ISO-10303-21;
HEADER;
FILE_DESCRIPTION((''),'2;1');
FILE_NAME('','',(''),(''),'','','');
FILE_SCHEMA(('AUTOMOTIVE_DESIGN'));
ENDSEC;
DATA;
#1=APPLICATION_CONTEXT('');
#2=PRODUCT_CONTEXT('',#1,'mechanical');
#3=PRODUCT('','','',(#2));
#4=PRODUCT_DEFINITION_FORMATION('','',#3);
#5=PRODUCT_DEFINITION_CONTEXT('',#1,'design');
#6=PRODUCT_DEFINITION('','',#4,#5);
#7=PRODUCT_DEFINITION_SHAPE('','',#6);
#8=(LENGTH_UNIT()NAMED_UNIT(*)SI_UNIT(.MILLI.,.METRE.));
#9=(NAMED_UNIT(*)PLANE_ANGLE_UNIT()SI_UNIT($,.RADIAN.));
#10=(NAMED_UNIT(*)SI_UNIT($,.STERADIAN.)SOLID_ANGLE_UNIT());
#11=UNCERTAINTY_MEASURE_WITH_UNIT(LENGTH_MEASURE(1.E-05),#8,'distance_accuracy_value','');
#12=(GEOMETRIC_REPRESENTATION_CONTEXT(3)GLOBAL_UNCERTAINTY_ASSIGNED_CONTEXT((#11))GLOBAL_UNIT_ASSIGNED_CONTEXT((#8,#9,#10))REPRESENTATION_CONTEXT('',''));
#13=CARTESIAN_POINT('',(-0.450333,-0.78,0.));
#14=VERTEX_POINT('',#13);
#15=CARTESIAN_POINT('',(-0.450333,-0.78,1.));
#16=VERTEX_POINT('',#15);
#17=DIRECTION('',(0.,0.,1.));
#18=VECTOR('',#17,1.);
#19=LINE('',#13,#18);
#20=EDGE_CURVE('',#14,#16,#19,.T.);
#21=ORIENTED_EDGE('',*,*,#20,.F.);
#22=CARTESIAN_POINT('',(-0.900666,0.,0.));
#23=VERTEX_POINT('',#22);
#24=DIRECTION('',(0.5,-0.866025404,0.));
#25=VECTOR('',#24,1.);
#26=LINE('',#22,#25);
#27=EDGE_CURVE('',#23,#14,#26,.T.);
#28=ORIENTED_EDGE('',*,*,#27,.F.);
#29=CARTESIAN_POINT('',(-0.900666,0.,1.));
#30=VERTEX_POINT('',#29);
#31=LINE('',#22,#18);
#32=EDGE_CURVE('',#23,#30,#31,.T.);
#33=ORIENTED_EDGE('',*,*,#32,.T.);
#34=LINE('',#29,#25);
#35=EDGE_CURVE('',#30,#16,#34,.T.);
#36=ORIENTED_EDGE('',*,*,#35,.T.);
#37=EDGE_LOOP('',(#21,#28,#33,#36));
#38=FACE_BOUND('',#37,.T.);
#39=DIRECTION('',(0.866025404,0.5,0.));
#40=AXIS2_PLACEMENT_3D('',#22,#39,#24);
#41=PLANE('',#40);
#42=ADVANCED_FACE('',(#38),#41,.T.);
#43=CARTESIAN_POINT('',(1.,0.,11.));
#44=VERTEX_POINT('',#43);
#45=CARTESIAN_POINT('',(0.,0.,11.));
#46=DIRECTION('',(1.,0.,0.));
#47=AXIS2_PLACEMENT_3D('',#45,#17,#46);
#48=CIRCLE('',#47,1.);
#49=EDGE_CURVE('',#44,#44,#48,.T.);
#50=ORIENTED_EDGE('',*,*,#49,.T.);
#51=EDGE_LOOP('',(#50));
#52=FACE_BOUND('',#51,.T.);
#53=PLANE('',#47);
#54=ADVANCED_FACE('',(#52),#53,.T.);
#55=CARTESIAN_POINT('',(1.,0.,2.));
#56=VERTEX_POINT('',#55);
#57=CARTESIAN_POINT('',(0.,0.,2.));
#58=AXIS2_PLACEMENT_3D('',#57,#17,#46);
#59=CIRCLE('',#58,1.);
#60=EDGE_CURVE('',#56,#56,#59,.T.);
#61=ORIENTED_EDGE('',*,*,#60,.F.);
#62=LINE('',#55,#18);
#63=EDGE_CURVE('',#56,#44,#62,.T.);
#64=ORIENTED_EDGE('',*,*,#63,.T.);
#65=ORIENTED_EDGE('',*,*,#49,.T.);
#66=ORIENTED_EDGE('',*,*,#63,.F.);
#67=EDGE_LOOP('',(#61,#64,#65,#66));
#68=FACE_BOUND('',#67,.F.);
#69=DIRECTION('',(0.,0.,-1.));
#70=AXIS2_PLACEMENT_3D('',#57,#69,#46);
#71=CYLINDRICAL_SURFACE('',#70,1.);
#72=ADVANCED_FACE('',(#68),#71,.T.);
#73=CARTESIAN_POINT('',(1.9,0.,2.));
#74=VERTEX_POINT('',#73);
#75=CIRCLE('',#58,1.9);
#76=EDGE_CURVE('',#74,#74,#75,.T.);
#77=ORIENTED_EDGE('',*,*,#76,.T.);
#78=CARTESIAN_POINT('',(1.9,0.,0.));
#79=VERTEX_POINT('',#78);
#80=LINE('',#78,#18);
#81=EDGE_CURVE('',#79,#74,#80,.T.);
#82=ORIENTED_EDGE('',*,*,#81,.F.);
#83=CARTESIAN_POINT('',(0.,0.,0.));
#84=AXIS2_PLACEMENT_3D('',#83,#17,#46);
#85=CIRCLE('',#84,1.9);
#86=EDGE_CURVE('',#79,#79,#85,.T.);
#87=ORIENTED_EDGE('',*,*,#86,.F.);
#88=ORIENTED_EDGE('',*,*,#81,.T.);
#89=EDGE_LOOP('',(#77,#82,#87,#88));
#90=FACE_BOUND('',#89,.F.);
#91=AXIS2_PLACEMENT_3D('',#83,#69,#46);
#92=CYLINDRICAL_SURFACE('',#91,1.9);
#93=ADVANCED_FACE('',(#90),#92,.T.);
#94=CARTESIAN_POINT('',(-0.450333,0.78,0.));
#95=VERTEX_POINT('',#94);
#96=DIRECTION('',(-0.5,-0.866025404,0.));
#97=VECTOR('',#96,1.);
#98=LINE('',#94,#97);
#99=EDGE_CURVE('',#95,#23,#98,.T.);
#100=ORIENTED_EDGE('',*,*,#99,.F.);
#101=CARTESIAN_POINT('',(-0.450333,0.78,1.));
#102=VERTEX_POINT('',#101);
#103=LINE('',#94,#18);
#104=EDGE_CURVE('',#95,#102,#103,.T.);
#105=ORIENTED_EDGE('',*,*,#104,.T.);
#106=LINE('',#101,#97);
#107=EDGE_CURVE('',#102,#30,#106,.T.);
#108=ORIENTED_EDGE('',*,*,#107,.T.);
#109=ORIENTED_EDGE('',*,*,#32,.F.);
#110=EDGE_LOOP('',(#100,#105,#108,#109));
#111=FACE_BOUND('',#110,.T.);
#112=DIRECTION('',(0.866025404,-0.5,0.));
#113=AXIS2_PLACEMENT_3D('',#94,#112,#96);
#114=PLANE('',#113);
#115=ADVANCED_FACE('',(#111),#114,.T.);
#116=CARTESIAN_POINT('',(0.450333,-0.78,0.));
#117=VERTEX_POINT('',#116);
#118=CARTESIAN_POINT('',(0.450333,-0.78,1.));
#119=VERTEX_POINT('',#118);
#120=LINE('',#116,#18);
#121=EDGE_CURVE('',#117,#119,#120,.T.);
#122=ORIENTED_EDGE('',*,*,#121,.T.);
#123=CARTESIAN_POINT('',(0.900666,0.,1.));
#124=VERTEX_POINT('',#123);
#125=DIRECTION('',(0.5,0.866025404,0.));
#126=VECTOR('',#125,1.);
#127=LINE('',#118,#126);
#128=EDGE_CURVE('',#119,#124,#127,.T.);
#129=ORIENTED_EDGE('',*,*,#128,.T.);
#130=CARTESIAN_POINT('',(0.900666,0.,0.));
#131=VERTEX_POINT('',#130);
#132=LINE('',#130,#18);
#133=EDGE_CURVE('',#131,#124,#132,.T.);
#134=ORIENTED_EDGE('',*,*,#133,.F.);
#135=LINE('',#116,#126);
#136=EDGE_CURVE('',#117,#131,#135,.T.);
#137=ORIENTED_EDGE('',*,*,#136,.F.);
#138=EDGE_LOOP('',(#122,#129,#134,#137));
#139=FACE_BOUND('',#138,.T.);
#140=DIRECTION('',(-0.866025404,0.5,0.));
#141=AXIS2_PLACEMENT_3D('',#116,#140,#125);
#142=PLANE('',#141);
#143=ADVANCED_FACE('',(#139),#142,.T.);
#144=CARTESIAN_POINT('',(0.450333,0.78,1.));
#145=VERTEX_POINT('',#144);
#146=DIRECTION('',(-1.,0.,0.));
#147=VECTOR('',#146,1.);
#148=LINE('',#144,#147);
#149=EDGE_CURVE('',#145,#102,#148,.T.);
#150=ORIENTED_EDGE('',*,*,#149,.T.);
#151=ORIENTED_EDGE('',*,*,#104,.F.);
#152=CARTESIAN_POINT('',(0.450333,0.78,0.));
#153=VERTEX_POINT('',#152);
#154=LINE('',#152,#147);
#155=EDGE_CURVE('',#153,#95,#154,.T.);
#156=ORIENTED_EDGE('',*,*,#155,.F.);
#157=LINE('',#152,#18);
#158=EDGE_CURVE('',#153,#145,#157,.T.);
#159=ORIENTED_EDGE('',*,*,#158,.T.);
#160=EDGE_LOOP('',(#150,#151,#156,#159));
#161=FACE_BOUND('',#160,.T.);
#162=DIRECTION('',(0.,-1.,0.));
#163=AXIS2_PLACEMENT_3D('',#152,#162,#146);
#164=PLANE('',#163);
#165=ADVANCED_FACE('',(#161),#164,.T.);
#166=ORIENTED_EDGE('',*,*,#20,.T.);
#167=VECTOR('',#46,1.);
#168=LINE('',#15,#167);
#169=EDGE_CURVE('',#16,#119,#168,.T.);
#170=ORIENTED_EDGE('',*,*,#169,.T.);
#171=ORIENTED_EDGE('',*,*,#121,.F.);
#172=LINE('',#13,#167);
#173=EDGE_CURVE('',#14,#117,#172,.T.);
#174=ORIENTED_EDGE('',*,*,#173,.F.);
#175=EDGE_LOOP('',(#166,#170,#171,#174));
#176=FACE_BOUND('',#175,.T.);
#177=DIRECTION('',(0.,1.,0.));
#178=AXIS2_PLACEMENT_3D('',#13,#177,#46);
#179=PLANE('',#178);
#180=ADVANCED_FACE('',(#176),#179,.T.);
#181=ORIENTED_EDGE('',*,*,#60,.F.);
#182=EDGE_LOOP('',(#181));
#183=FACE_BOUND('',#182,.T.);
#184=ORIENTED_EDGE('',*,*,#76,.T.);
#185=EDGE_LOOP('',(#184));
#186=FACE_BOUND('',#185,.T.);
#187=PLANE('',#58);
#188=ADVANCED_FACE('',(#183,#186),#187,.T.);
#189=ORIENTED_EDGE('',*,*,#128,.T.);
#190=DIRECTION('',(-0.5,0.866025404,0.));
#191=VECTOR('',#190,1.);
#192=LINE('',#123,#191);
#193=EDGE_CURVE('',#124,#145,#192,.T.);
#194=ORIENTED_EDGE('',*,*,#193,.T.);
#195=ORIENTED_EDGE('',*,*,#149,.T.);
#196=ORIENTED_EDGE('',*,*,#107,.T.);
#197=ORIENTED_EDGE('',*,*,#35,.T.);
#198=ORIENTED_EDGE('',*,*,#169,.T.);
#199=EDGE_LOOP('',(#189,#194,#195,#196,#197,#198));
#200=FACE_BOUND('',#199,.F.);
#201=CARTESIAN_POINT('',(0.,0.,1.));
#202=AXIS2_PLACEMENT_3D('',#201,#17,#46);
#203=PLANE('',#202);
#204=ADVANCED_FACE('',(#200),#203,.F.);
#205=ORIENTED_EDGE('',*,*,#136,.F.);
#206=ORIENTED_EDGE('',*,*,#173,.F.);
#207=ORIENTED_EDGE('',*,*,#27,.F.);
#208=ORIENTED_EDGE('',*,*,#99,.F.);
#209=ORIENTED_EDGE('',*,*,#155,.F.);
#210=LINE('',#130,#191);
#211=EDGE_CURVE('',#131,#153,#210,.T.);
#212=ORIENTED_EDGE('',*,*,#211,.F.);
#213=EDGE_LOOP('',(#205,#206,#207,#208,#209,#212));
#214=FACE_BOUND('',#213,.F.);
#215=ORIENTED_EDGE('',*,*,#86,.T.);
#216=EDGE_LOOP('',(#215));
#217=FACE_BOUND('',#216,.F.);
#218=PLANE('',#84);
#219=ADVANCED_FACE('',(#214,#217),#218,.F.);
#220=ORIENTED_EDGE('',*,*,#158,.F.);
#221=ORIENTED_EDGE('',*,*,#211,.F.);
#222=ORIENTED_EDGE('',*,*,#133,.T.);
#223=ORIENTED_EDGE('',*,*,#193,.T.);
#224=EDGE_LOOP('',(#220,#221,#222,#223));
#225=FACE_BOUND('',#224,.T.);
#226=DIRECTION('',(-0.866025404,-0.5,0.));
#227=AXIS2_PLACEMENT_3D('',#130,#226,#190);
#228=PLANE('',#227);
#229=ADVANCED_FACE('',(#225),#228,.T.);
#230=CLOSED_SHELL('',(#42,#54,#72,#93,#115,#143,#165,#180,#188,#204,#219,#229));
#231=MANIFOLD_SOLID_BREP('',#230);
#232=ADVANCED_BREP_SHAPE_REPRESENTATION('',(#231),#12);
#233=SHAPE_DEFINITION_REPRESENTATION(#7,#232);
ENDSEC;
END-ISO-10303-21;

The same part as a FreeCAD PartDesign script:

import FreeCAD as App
import Part
import Sketcher

V = App.Vector
Q = App.Units.Quantity

doc = App.newDocument("Part")
params = doc.addObject("Spreadsheet::Sheet", "Params")
for row, (alias, value) in enumerate([
    ("sketch1_diameter", "3.8 mm"),
    ("pad1_length", "2 mm"),
    ("pocket1_length", "1 mm"),
    ("sketch3_diameter", "2 mm"),
    ("pad2_length", "9 mm"),
], start=1):
    params.set(f"A{row}", alias)
    params.set(f"B{row}", "=" + value)
    params.setAlias(f"B{row}", alias)

body = doc.addObject("PartDesign::Body", "Body")

# Sketch on XY plane
sketch1 = body.newObject("Sketcher::SketchObject", "Sketch")
sketch1.AttachmentSupport = (doc.getObject("XY_Plane"), [""])
sketch1.MapMode = "FlatFace"
sketch1.addGeometry(Part.Circle(V(0, 0, 0), V(0, 0, 1), 1.9), False)
sketch1.addConstraint(Sketcher.Constraint("Coincident", 0, 3, -1, 1))
sketch1.addConstraint(Sketcher.Constraint("Diameter", 0, Q("3.8 mm")))
sketch1.setExpression("Constraints[1]", "Params.sketch1_diameter")
pad1 = body.newObject("PartDesign::Pad", "Pad")
pad1.Profile = sketch1
pad1.setExpression("Length", "Params.pad1_length")

# Sketch on XY plane
sketch2 = body.newObject("Sketcher::SketchObject", "Sketch001")
sketch2.AttachmentSupport = (doc.getObject("XY_Plane"), [""])
sketch2.MapMode = "FlatFace"
sketch2.addGeometry(Part.LineSegment(V(0.450333, 0.78, 0), V(-0.450333, 0.78, 0)), False)
sketch2.addGeometry(Part.LineSegment(V(-0.450333, 0.78, 0), V(-0.900666, 0, 0)), False)
sketch2.addGeometry(Part.LineSegment(V(-0.900666, 0, 0), V(-0.450333, -0.78, 0)), False)
sketch2.addGeometry(Part.LineSegment(V(-0.450333, -0.78, 0), V(0.450333, -0.78, 0)), False)
sketch2.addGeometry(Part.LineSegment(V(0.450333, -0.78, 0), V(0.900666, 0, 0)), False)
sketch2.addGeometry(Part.LineSegment(V(0.900666, 0, 0), V(0.450333, 0.78, 0)), False)
sketch2.addConstraint(Sketcher.Constraint("Coincident", 0, 2, 1, 1))
sketch2.addConstraint(Sketcher.Constraint("Coincident", 1, 2, 2, 1))
sketch2.addConstraint(Sketcher.Constraint("Coincident", 2, 2, 3, 1))
sketch2.addConstraint(Sketcher.Constraint("Coincident", 3, 2, 4, 1))
sketch2.addConstraint(Sketcher.Constraint("Coincident", 4, 2, 5, 1))
sketch2.addConstraint(Sketcher.Constraint("Coincident", 5, 2, 0, 1))
sketch2.addConstraint(Sketcher.Constraint("Horizontal", 0))
sketch2.addConstraint(Sketcher.Constraint("Horizontal", 3))
sketch2.addConstraint(Sketcher.Constraint("Symmetric", 0, 2, 3, 2, -1, 1))
sketch2.addConstraint(Sketcher.Constraint("Symmetric", 1, 2, 4, 2, -1, 1))
sketch2.addConstraint(Sketcher.Constraint("PointOnObject", 1, 2, -1))
sketch2.addConstraint(Sketcher.Constraint("Parallel", 2, 5))
sketch2.addConstraint(Sketcher.Constraint("Vertical", 0, 2, 2, 2))
sketch2.addConstraint(Sketcher.Constraint("Angle", 1, Q("-120 deg")))
sketch2.addConstraint(Sketcher.Constraint("DistanceY", -1, 1, 0, 2, Q("0.78 mm")))
sketch2.addConstraint(Sketcher.Constraint("DistanceX", 1, 2, 3, 2, Q("1.351 mm")))
pocket1 = body.newObject("PartDesign::Pocket", "Pocket")
pocket1.Profile = sketch2
pocket1.setExpression("Length", "Params.pocket1_length")
pocket1.Reversed = True

# Sketch on XY plane
sketch3 = body.newObject("Sketcher::SketchObject", "Sketch002")
sketch3.AttachmentSupport = (doc.getObject("XY_Plane"), [""])
sketch3.MapMode = "FlatFace"
sketch3.AttachmentOffset = App.Placement(V(0, 0, 2), App.Rotation())
sketch3.addGeometry(Part.Circle(V(0, 0, 0), V(0, 0, 1), 1), False)
sketch3.addConstraint(Sketcher.Constraint("Coincident", 0, 3, -1, 1))
sketch3.addConstraint(Sketcher.Constraint("Diameter", 0, Q("2 mm")))
sketch3.setExpression("Constraints[1]", "Params.sketch3_diameter")
pad2 = body.newObject("PartDesign::Pad", "Pad001")
pad2.Profile = sketch3
pad2.setExpression("Length", "Params.pad2_length")

doc.recompute()
